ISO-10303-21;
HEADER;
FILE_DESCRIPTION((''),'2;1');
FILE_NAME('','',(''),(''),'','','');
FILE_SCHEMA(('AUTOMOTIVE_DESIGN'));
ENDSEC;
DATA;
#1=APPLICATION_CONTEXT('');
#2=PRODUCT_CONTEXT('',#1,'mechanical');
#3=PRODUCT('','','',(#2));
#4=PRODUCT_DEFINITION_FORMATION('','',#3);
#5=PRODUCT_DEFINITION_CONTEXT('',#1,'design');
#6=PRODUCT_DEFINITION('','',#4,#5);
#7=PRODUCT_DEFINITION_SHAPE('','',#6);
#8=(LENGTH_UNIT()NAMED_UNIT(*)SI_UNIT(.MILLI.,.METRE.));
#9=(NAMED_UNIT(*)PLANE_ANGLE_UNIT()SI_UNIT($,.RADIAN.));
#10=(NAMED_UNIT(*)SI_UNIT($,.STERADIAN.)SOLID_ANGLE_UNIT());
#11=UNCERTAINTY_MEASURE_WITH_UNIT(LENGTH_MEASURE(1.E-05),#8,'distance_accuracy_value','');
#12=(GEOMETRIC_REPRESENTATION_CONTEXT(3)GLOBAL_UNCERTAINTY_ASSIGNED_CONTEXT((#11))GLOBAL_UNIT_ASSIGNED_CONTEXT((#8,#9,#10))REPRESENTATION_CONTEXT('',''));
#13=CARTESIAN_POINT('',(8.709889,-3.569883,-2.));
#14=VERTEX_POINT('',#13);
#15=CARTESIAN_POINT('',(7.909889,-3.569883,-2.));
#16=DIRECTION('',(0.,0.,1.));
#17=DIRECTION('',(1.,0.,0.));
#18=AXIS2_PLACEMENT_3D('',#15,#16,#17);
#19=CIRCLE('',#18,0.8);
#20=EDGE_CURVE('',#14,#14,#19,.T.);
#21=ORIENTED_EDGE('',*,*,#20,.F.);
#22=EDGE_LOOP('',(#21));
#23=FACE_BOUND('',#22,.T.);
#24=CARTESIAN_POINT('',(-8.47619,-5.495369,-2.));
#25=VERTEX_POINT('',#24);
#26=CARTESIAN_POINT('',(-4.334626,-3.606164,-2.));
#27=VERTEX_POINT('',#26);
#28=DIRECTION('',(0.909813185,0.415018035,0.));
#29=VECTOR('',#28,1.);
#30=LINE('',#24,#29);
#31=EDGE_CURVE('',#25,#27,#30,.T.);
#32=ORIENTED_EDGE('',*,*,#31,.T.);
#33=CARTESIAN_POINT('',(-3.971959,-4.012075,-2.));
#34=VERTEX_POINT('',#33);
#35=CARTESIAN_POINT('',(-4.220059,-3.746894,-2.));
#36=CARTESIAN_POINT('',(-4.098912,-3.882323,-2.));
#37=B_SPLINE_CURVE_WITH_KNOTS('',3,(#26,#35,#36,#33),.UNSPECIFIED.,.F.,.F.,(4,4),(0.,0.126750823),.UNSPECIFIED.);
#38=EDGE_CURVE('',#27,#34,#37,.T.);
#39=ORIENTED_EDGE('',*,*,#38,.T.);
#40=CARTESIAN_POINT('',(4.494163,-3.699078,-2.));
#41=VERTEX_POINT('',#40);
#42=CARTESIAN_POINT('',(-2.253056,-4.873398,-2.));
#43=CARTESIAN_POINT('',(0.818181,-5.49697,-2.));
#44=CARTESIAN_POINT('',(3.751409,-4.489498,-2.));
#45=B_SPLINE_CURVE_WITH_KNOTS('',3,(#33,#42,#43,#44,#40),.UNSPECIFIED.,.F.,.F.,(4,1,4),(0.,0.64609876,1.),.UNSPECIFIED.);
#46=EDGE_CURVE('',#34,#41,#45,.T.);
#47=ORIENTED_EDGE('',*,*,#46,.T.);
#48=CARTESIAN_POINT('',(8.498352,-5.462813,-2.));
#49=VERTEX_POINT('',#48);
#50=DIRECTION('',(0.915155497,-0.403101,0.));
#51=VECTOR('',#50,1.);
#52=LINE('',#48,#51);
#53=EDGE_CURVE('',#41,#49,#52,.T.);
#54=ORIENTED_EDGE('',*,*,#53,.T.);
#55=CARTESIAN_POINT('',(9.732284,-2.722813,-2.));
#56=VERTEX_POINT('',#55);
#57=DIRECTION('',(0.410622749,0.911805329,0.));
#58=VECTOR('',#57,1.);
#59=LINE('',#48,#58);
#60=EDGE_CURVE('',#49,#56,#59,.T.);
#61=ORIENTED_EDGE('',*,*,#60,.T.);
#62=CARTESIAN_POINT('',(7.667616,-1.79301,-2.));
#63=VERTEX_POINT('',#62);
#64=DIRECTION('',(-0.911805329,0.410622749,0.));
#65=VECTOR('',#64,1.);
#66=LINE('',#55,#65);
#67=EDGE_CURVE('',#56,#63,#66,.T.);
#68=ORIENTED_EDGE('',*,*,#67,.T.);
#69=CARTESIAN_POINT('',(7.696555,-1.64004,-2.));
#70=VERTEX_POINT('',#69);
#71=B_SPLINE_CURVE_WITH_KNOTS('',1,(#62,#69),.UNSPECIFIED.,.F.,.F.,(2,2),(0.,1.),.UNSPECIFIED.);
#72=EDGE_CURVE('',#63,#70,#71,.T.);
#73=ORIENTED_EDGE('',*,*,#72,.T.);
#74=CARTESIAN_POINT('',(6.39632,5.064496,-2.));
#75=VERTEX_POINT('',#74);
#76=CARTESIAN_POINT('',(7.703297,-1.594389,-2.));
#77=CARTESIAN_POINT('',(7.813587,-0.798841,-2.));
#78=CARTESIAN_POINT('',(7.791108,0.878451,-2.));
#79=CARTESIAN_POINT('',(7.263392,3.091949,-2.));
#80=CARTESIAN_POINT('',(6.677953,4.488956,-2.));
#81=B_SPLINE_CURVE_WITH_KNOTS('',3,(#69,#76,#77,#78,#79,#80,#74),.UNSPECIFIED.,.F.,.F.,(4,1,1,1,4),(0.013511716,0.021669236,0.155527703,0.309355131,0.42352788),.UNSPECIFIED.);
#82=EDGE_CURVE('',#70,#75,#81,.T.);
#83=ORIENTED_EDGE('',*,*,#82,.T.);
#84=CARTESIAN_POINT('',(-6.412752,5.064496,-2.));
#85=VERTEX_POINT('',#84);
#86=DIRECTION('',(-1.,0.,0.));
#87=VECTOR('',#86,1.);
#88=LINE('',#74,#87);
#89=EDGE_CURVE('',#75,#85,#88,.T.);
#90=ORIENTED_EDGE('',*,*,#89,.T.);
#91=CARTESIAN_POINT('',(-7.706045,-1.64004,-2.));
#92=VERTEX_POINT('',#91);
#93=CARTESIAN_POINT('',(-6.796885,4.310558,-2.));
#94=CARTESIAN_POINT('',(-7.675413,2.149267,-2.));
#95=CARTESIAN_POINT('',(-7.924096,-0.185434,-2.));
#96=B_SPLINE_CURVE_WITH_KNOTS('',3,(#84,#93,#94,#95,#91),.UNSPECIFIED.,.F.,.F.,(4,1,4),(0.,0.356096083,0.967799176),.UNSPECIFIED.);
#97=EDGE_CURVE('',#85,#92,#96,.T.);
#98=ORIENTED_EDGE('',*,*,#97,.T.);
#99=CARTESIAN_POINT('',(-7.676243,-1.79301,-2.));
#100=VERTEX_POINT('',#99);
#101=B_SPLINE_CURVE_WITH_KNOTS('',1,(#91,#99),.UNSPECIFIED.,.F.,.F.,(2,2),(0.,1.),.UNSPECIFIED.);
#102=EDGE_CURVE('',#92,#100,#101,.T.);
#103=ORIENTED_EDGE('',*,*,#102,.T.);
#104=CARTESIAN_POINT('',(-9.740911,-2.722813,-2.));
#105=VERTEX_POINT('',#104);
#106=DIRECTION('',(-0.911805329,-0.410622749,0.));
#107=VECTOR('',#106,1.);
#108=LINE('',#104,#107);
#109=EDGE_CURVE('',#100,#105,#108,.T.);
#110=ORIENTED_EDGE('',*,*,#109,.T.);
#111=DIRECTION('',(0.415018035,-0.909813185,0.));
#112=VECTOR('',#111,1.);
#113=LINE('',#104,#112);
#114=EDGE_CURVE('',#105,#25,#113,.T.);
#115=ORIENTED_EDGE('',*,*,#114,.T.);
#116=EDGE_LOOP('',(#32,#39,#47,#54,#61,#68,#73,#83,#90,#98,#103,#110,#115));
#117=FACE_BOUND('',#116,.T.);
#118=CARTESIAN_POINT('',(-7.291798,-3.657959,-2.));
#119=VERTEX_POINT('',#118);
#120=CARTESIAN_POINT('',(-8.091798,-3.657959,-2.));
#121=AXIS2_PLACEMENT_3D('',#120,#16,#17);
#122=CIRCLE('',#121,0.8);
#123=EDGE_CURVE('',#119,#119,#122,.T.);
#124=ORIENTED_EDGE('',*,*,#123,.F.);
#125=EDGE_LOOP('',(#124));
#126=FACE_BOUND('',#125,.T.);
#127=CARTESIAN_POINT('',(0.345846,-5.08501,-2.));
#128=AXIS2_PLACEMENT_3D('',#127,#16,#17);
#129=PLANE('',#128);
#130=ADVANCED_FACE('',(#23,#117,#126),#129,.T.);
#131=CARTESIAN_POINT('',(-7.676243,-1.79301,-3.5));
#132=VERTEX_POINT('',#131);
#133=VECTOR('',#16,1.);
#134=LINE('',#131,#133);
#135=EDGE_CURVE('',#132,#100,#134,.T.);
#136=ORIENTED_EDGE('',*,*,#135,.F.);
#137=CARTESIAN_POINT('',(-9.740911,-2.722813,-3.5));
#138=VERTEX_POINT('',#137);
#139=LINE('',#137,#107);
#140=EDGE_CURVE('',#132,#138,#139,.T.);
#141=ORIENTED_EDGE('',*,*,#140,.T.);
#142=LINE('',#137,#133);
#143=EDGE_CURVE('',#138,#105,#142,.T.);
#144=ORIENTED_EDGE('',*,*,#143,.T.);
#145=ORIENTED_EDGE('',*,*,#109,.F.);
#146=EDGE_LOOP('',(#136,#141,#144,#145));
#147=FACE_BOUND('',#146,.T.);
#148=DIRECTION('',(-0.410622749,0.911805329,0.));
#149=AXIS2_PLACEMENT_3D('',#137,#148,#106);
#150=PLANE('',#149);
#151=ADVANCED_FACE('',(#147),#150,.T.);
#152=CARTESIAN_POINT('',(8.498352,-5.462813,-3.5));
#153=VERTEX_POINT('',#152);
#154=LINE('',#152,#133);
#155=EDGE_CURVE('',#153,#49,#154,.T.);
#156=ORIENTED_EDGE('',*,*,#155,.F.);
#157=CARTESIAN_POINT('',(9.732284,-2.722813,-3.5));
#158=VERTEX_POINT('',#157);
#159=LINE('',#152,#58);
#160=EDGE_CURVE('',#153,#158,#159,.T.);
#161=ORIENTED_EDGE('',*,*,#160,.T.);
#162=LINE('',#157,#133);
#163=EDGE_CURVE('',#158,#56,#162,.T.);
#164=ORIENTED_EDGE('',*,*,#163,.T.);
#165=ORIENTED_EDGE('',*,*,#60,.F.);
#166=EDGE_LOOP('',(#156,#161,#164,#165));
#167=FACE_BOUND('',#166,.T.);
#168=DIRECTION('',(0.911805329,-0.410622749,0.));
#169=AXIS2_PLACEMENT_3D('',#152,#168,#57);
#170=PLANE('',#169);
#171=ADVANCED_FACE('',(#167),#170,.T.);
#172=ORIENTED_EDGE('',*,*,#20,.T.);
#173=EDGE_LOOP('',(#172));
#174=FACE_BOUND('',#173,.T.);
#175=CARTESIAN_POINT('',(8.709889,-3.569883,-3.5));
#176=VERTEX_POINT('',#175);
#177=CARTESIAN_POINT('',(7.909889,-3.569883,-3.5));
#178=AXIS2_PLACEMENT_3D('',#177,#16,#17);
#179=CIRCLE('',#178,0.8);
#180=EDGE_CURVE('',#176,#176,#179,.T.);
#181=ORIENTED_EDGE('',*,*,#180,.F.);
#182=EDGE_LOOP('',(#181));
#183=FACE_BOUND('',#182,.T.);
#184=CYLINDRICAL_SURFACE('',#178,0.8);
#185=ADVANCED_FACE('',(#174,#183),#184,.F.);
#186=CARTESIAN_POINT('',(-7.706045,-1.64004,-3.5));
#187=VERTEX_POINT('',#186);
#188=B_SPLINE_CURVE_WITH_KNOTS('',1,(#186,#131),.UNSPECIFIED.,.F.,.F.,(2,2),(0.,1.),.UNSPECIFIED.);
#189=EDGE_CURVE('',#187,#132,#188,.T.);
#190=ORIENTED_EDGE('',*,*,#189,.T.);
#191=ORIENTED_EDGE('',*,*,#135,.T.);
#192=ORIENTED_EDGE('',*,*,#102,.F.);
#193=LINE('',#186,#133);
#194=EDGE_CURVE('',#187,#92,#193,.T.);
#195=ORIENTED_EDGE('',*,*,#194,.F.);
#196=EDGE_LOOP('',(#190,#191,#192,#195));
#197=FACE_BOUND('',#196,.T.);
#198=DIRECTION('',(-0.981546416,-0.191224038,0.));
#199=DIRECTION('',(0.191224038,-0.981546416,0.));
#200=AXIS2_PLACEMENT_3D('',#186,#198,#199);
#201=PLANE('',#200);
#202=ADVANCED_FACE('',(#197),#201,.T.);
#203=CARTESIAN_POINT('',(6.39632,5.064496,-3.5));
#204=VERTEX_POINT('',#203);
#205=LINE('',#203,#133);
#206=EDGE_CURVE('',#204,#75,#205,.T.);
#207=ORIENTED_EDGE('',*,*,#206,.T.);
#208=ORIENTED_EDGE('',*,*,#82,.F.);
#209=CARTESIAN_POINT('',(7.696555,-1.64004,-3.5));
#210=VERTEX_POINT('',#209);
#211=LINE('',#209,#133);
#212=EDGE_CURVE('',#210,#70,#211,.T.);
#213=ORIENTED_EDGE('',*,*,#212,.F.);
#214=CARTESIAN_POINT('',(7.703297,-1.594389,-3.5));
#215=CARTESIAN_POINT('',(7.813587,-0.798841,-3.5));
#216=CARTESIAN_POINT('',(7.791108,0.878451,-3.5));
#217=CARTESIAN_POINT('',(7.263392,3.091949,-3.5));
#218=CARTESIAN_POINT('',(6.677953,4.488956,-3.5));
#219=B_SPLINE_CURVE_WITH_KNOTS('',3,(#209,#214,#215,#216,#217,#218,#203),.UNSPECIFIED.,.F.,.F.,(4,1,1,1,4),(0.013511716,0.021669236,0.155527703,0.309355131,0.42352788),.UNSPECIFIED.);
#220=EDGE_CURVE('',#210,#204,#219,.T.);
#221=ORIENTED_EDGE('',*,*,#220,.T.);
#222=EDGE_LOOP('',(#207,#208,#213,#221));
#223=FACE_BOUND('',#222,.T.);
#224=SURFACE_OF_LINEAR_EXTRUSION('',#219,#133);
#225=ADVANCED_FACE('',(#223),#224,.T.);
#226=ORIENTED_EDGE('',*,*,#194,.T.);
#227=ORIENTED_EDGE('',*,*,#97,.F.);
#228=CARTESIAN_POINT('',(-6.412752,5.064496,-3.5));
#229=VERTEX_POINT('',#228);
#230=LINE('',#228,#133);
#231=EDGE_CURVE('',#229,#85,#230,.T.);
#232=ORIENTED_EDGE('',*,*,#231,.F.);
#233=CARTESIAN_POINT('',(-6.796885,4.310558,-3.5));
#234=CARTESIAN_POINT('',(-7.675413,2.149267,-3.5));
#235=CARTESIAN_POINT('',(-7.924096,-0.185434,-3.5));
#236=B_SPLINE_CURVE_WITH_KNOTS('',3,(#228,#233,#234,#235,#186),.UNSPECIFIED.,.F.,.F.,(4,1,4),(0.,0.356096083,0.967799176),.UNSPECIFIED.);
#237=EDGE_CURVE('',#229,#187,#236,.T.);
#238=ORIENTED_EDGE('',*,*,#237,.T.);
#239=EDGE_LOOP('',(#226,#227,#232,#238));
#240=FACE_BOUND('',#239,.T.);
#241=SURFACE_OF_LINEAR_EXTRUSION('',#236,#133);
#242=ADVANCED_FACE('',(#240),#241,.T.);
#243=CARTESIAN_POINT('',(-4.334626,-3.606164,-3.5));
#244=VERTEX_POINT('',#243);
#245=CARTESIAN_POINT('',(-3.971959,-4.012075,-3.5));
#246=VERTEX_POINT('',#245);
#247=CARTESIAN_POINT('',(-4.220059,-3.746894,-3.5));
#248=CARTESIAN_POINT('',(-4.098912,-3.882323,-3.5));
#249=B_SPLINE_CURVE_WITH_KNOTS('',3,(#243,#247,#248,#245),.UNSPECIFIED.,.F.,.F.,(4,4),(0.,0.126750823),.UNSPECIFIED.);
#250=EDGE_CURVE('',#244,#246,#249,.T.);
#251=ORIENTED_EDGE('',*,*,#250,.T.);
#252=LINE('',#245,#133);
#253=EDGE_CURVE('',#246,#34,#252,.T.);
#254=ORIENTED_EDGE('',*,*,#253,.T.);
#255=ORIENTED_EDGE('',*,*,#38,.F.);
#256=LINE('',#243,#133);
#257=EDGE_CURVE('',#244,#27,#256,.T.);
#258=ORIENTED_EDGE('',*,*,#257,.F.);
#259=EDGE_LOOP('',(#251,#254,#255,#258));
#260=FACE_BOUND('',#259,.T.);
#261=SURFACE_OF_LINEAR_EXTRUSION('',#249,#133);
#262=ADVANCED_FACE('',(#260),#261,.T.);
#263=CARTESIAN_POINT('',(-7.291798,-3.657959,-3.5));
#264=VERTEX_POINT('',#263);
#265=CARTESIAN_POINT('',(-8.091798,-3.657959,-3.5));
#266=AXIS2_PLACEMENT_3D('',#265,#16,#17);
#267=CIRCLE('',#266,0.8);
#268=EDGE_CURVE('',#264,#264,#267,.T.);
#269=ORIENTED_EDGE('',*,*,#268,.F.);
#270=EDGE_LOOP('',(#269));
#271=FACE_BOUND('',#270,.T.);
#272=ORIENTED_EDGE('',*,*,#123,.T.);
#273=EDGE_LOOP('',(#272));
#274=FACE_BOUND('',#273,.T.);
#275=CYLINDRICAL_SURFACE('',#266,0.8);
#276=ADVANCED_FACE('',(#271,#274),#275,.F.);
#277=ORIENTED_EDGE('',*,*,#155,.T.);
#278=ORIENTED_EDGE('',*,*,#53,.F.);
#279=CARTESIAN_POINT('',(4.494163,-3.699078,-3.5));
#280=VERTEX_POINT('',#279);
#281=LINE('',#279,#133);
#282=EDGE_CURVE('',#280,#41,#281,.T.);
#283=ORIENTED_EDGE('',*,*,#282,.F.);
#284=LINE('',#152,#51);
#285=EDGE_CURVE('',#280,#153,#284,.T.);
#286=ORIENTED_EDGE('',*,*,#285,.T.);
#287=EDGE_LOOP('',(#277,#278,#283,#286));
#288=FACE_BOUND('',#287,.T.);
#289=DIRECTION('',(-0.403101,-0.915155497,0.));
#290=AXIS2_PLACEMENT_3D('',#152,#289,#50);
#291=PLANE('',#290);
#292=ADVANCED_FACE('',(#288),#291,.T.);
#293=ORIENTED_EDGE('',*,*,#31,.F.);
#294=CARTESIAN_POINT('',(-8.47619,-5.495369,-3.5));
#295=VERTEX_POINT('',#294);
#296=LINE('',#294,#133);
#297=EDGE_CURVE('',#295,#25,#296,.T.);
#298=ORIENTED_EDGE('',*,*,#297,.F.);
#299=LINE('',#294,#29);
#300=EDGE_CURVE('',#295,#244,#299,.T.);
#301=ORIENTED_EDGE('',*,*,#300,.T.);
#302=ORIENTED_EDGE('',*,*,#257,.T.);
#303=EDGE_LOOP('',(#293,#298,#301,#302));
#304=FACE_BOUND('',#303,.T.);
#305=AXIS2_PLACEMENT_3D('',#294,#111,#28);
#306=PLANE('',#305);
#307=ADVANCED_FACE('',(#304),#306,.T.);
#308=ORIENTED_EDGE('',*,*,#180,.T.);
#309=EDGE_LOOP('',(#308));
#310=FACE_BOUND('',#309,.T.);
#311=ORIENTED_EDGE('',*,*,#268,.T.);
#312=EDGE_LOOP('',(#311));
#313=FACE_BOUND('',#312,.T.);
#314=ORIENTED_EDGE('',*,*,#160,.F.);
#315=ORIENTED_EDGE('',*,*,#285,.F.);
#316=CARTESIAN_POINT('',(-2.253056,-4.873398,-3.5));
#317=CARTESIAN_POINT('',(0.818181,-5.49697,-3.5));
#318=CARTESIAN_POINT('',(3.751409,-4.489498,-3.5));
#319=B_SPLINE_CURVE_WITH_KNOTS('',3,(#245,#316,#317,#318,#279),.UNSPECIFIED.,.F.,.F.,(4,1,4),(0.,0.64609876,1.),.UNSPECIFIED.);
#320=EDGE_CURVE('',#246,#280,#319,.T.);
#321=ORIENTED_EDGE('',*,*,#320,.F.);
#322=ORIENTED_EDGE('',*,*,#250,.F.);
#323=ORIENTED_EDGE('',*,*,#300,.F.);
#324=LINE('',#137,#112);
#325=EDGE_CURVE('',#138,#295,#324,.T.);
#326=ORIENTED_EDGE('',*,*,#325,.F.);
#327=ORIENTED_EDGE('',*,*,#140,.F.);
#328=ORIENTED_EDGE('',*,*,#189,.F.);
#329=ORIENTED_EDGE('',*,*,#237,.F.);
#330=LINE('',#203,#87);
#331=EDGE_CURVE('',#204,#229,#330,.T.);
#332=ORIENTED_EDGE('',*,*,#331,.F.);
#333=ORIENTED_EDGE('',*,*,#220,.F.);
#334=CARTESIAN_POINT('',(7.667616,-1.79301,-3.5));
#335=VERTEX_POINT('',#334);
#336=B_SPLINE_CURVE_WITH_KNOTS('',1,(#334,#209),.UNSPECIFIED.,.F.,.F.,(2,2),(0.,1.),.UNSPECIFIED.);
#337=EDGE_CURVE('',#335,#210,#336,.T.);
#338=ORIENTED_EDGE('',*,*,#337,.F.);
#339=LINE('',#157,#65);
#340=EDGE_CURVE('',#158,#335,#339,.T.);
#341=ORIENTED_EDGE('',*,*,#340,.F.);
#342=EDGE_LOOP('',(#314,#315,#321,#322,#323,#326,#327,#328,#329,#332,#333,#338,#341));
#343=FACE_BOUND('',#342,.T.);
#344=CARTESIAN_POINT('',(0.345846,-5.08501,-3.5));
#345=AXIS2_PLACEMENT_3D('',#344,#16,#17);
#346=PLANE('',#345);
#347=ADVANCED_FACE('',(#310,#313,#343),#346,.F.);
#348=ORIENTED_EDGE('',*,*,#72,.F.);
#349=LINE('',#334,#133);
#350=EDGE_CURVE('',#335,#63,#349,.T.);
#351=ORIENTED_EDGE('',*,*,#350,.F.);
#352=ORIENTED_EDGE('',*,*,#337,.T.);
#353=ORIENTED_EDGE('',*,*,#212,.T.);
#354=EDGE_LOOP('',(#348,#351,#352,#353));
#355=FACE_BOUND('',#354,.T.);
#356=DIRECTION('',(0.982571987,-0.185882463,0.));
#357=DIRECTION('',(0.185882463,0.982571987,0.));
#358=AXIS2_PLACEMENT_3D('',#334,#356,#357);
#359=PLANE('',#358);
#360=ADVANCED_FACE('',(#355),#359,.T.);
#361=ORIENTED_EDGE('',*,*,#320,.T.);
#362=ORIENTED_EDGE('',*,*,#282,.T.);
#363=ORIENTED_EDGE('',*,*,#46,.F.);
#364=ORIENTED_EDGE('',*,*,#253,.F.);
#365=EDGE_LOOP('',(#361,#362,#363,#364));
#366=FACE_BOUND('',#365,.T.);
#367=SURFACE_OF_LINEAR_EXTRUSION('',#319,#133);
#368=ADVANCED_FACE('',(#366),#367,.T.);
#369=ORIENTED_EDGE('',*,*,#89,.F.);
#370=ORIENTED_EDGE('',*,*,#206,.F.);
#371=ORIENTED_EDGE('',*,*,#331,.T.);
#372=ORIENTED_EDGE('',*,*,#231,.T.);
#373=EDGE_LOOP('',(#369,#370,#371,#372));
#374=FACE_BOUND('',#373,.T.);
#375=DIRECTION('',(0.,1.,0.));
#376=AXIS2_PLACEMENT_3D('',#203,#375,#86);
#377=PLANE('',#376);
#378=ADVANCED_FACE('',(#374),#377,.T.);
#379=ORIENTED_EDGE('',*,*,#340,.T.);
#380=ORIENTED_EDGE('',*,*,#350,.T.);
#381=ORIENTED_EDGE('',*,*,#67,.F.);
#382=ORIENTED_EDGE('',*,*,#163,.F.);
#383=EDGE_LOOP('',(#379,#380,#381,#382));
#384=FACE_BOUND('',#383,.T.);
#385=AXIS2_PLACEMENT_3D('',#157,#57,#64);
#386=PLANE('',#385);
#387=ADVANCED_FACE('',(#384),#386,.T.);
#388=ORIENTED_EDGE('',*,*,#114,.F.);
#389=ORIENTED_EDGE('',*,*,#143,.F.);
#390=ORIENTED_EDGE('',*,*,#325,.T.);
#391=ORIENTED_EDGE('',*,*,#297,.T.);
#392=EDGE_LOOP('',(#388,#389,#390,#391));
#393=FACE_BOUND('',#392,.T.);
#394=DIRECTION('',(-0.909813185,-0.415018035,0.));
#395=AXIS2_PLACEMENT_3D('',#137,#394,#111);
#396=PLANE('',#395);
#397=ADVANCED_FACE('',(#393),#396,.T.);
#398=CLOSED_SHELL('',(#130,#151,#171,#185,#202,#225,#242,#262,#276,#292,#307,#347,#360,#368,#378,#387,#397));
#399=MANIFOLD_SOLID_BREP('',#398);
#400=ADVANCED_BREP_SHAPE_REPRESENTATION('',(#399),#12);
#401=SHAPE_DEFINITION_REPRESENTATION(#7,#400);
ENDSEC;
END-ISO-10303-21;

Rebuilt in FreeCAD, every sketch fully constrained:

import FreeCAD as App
import Part
import Sketcher

V = App.Vector
Q = App.Units.Quantity

doc = App.newDocument("Part")
body = doc.addObject("PartDesign::Body", "Body")

# Sketch on XY plane
sketch1 = doc.addObject("Sketcher::SketchObject", "Sketch")
body.addObject(sketch1)
sketch1.AttachmentSupport = (doc.XY_Plane, [""])
sketch1.MapMode = "FlatFace"
sketch1.AttachmentOffset = App.Placement(V(0, 0, -2), App.Rotation())
sketch1.addGeometry(Part.LineSegment(V(-9.740911, -2.722813, 0), V(-8.47619, -5.495369, 0)), False)
sketch1.addGeometry(Part.LineSegment(V(-8.47619, -5.495369, 0), V(-4.334626, -3.606164, 0)), False)
sketch1.addGeometry(Part.BSplineCurve([V(-4.334626, -3.606164, 0), V(-4.220059, -3.746894, 0), V(-4.098912, -3.882323, 0), V(-3.971959, -4.012075, 0)], [4, 4], [0, 0.126750823], False, 3, [1, 1, 1, 1], False), False)
sketch1.addGeometry(Part.BSplineCurve([V(4.494163, -3.699078, 0), V(3.751409, -4.489498, 0), V(0.818181, -5.49697, 0), V(-2.253056, -4.873398, 0), V(-3.971959, -4.012075, 0)], [4, 1, 4], [0, 0.35390124, 1], False, 3, [1, 1, 1, 1, 1], False), False)
sketch1.addGeometry(Part.LineSegment(V(4.494163, -3.699078, 0), V(8.498352, -5.462813, 0)), False)
sketch1.addGeometry(Part.LineSegment(V(8.498352, -5.462813, 0), V(9.732284, -2.722813, 0)), False)
sketch1.addGeometry(Part.LineSegment(V(9.732284, -2.722813, 0), V(7.667616, -1.79301, 0)), False)
sketch1.addGeometry(Part.LineSegment(V(7.667616, -1.79301, 0), V(7.696555, -1.64004, 0)), False)
sketch1.addGeometry(Part.BSplineCurve([V(6.39632, 5.064496, 0), V(6.677953, 4.488956, 0), V(7.263392, 3.091949, 0), V(7.791108, 0.878451, 0), V(7.813587, -0.798841, 0), V(7.703297, -1.594389, 0), V(7.696555, -1.64004, 0)], [4, 1, 1, 1, 4], [0.013511716, 0.127684465, 0.281511893, 0.415370359, 0.42352788], False, 3, [1, 1, 1, 1, 1, 1, 1], False), False)
sketch1.addGeometry(Part.LineSegment(V(6.39632, 5.064496, 0), V(-6.412752, 5.064496, 0)), False)
sketch1.addGeometry(Part.BSplineCurve([V(-7.706045, -1.64004, 0), V(-7.924096, -0.185434, 0), V(-7.675413, 2.149267, 0), V(-6.796885, 4.310558, 0), V(-6.412752, 5.064496, 0)], [4, 1, 4], [0, 0.611703094, 0.967799176], False, 3, [1, 1, 1, 1, 1], False), False)
sketch1.addGeometry(Part.LineSegment(V(-7.706045, -1.64004, 0), V(-7.676243, -1.79301, 0)), False)
sketch1.addGeometry(Part.LineSegment(V(-7.676243, -1.79301, 0), V(-9.740911, -2.722813, 0)), False)
sketch1.addGeometry(Part.Circle(V(-8.091798, -3.657959, 0), V(0, 0, 1), 0.8), False)
sketch1.addGeometry(Part.Circle(V(7.909889, -3.569883, 0), V(0, 0, 1), 0.8), False)
sketch1.addConstraint(Sketcher.Constraint("Block", 2))
sketch1.addConstraint(Sketcher.Constraint("Block", 3))
sketch1.addConstraint(Sketcher.Constraint("Block", 8))
sketch1.addConstraint(Sketcher.Constraint("Block", 10))
sketch1.addConstraint(Sketcher.Constraint("Coincident", 0, 2, 1, 1))
sketch1.addConstraint(Sketcher.Constraint("Coincident", 1, 2, 2, 1))
sketch1.addConstraint(Sketcher.Constraint("Coincident", 3, 1, 4, 1))
sketch1.addConstraint(Sketcher.Constraint("Coincident", 4, 2, 5, 1))
sketch1.addConstraint(Sketcher.Constraint("Coincident", 5, 2, 6, 1))
sketch1.addConstraint(Sketcher.Constraint("Coincident", 6, 2, 7, 1))
sketch1.addConstraint(Sketcher.Constraint("Coincident", 7, 2, 8, 2))
sketch1.addConstraint(Sketcher.Constraint("Coincident", 8, 1, 9, 1))
sketch1.addConstraint(Sketcher.Constraint("Coincident", 9, 2, 10, 2))
sketch1.addConstraint(Sketcher.Constraint("Coincident", 10, 1, 11, 1))
sketch1.addConstraint(Sketcher.Constraint("Coincident", 11, 2, 12, 1))
sketch1.addConstraint(Sketcher.Constraint("Coincident", 12, 2, 0, 1))
sketch1.addConstraint(Sketcher.Constraint("Diameter", 13, Q("1.6 mm")))
sketch1.addConstraint(Sketcher.Constraint("Diameter", 14, Q("1.6 mm")))
sketch1.addConstraint(Sketcher.Constraint("DistanceY", 4, 2, 5, 2, Q("2.74 mm")))
sketch1.addConstraint(Sketcher.Constraint("DistanceX", 13, 3, -1, 1, Q("8.091798 mm")))
sketch1.addConstraint(Sketcher.Constraint("Distance", 0, Q("3.04739 mm")))
sketch1.addConstraint(Sketcher.Constraint("Distance", 4, Q("4.375419 mm")))
sketch1.addConstraint(Sketcher.Constraint("DistanceY", 13, 3, -1, 1, Q("3.657959 mm")))
sketch1.addConstraint(Sketcher.Constraint("DistanceX", -1, 1, 14, 3, Q("7.909889 mm")))
sketch1.addConstraint(Sketcher.Constraint("DistanceX", 0, 2, -1, 1, Q("8.47619 mm")))
sketch1.addConstraint(Sketcher.Constraint("DistanceY", 0, 2, -1, 1, Q("5.495369 mm")))
sketch1.addConstraint(Sketcher.Constraint("DistanceX", -1, 1, 4, 2, Q("8.498352 mm")))
sketch1.addConstraint(Sketcher.Constraint("DistanceY", 6, 2, -1, 1, Q("1.79301 mm")))
sketch1.addConstraint(Sketcher.Constraint("DistanceY", 11, 2, -1, 1, Q("1.79301 mm")))
sketch1.addConstraint(Sketcher.Constraint("DistanceX", 12, 2, -1, 1, Q("9.740911 mm")))
sketch1.addConstraint(Sketcher.Constraint("DistanceY", 1, 2, 14, 3, Q("0.036281 mm")))
sketch1.addConstraint(Sketcher.Constraint("DistanceX", 1, 2, 5, 2, Q("14.066911 mm")))
sketch1.addConstraint(Sketcher.Constraint("DistanceX", 6, 2, 7, 2, Q("0.028939 mm")))
sketch1.addConstraint(Sketcher.Constraint("DistanceX", 11, 2, 9, 2, Q("1.263492 mm")))
pad1 = doc.addObject("PartDesign::Pad", "Pad")
body.addObject(pad1)
pad1.Profile = sketch1
pad1.Length = 1.5
pad1.Reversed = True

doc.recompute()
